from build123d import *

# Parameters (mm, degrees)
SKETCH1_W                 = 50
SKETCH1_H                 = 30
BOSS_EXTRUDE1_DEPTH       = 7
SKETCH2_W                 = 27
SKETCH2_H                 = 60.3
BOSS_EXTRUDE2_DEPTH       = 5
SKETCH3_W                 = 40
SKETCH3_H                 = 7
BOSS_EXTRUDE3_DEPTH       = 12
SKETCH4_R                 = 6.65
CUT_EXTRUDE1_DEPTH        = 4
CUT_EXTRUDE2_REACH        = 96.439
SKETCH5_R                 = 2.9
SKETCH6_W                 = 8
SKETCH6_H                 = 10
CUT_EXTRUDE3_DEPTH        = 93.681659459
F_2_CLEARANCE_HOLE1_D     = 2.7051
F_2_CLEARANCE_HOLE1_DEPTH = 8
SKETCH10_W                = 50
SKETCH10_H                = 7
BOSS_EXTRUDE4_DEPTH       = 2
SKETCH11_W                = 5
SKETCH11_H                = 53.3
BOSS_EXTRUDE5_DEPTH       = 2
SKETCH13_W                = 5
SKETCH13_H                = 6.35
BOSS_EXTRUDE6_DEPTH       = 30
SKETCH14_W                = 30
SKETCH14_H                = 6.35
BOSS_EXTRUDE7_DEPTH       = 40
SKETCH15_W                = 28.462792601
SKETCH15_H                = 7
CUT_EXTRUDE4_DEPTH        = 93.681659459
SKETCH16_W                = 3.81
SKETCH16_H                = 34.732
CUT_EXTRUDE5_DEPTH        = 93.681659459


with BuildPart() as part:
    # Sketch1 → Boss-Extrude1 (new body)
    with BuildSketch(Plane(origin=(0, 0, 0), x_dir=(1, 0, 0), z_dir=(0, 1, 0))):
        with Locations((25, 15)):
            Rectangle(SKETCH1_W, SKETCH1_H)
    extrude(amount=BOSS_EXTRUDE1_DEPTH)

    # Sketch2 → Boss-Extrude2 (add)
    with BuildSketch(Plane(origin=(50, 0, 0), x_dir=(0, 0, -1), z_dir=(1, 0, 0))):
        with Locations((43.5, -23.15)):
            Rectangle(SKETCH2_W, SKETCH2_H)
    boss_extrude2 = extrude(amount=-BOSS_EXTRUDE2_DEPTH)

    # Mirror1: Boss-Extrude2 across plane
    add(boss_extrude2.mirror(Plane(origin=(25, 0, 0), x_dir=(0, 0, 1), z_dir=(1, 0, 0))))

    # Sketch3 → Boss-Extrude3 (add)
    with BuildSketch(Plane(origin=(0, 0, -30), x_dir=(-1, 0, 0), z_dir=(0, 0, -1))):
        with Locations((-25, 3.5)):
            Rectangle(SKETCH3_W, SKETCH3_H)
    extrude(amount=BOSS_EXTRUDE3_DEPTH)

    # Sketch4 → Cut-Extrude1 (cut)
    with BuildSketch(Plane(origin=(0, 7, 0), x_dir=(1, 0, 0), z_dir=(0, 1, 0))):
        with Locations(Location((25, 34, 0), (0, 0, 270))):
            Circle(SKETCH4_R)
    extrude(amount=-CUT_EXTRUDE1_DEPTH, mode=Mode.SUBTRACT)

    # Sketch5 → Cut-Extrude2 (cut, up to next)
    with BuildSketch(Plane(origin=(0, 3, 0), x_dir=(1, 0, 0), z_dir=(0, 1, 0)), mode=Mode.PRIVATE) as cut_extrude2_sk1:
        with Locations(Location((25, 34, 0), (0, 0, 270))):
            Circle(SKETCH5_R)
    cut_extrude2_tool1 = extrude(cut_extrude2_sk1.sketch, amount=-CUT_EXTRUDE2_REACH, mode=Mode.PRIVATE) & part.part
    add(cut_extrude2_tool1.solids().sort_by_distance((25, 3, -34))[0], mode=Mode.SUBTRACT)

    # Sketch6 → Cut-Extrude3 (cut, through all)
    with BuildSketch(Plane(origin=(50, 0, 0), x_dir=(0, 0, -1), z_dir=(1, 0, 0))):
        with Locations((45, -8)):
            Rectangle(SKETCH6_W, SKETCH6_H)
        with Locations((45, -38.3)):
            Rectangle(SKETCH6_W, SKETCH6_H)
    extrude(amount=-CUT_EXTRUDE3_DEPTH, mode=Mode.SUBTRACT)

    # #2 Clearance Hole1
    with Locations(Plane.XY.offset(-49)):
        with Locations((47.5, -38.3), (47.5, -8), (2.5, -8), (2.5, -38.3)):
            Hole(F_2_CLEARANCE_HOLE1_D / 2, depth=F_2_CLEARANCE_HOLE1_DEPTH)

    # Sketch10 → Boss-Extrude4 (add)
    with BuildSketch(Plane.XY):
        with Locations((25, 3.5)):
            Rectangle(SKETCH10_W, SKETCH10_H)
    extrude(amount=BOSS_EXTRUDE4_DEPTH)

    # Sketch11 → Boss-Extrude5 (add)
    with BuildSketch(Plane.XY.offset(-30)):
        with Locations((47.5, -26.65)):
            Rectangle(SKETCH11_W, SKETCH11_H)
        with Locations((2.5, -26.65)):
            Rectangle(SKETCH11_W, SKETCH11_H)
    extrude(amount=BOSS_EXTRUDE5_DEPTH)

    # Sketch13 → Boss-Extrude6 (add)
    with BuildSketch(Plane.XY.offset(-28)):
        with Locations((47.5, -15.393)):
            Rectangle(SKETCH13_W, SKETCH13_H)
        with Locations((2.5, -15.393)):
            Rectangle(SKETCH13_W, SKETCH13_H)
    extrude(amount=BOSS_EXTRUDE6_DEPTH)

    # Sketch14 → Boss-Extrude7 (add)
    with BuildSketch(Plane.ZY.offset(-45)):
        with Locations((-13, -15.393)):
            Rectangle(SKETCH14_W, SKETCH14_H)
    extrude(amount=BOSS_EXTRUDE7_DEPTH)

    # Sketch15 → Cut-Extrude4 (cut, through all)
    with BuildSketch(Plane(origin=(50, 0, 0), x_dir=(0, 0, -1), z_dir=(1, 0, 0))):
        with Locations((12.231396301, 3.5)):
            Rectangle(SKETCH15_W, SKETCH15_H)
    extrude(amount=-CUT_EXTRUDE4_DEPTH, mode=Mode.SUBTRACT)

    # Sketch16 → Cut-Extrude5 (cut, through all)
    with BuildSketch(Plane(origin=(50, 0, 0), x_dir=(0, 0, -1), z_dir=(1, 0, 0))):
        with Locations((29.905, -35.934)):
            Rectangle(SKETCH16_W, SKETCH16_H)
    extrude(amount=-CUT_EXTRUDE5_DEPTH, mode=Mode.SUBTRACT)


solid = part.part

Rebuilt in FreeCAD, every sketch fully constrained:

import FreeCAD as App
import Part
import Sketcher

V = App.Vector
Q = App.Units.Quantity

doc = App.newDocument("Part")
body = doc.addObject("PartDesign::Body", "Body")

sketch1 = doc.addObject("Sketcher::SketchObject", "Sketch")
body.addObject(sketch1)
sketch1.AttachmentSupport = (doc.XZ_Plane, [""])
sketch1.MapMode = "FlatFace"
sketch1.addGeometry([
    Part.LineSegment(V(0, -30, 0), V(0, 0, 0)),
    Part.LineSegment(V(0, 0, 0), V(50, 0, 0)),
    Part.LineSegment(V(50, 0, 0), V(50, -30, 0)),
    Part.LineSegment(V(50, -30, 0), V(0, -30, 0)),
], False)
sketch1.addConstraint([
    Sketcher.Constraint("Coincident", 0, 2, 1, 1),
    Sketcher.Constraint("Coincident", 1, 2, 2, 1),
    Sketcher.Constraint("Coincident", 2, 2, 3, 1),
    Sketcher.Constraint("Coincident", 3, 2, 0, 1),
    Sketcher.Constraint("Vertical", 0),
    Sketcher.Constraint("Horizontal", 1),
    Sketcher.Constraint("Vertical", 2),
    Sketcher.Constraint("Horizontal", 3),
    Sketcher.Constraint("Coincident", 0, 2, -1, 1),
    Sketcher.Constraint("DistanceX", 1, 1, 1, 2, Q("50 mm")),
    Sketcher.Constraint("DistanceY", 0, 1, 0, 2, Q("30 mm")),
])
pad1 = doc.addObject("PartDesign::Pad", "Pad")
body.addObject(pad1)
pad1.Profile = sketch1
pad1.Length = 7
pad1.Reversed = True

sketch2 = doc.addObject("Sketcher::SketchObject", "Sketch001")
body.addObject(sketch2)
sketch2.AttachmentSupport = (doc.YZ_Plane, [""])
sketch2.MapMode = "FlatFace"
sketch2.AttachmentOffset = App.Placement(V(0, 0, 50), App.Rotation())
sketch2.addGeometry([
    Part.LineSegment(V(7, -30, 0), V(-53.3, -30, 0)),
    Part.LineSegment(V(-53.3, -30, 0), V(-53.3, -57, 0)),
    Part.LineSegment(V(-53.3, -57, 0), V(7, -57, 0)),
    Part.LineSegment(V(7, -57, 0), V(7, -30, 0)),
], False)
sketch2.addConstraint([
    Sketcher.Constraint("Coincident", 0, 2, 1, 1),
    Sketcher.Constraint("Coincident", 1, 2, 2, 1),
    Sketcher.Constraint("Coincident", 2, 2, 3, 1),
    Sketcher.Constraint("Coincident", 3, 2, 0, 1),
    Sketcher.Constraint("Horizontal", 0),
    Sketcher.Constraint("Vertical", 1),
    Sketcher.Constraint("Horizontal", 2),
    Sketcher.Constraint("Vertical", 3),
    Sketcher.Constraint("DistanceY", 1, 2, 1, 1, Q("27 mm")),
    Sketcher.Constraint("DistanceX", 0, 2, 0, 1, Q("60.3 mm")),
    Sketcher.Constraint("DistanceY", 0, 2, -1, 1, Q("30 mm")),
    Sketcher.Constraint("DistanceX", -1, 1, 2, 2, Q("7 mm")),
])
pad2 = doc.addObject("PartDesign::Pad", "Pad001")
body.addObject(pad2)
pad2.Profile = sketch2
pad2.Length = 5
pad2.Reversed = True
doc.recompute()

datumplane = doc.addObject("PartDesign::Plane", "DatumPlane")
body.addObject(datumplane)
datumplane.AttachmentSupport = (doc.YZ_Plane, [""])
datumplane.MapMode = "FlatFace"
datumplane.AttachmentOffset = App.Placement(V(0, 0, 25), App.Rotation())
mirrored = doc.addObject("PartDesign::Mirrored", "Mirrored")
body.addObject(mirrored)
mirrored.Originals = [pad2]
mirrored.MirrorPlane = (datumplane, [""])
body.Tip = mirrored

sketch3 = doc.addObject("Sketcher::SketchObject", "Sketch002")
body.addObject(sketch3)
sketch3.AttachmentSupport = (doc.XY_Plane, [""])
sketch3.MapMode = "FlatFace"
sketch3.AttachmentOffset = App.Placement(V(0, 0, -30), App.Rotation())
sketch3.addGeometry([
    Part.LineSegment(V(45, 7, 0), V(45, 0, 0)),
    Part.LineSegment(V(45, 0, 0), V(5, 0, 0)),
    Part.LineSegment(V(5, 0, 0), V(5, 7, 0)),
    Part.LineSegment(V(5, 7, 0), V(45, 7, 0)),
], False)
sketch3.addConstraint([
    Sketcher.Constraint("Coincident", 0, 2, 1, 1),
    Sketcher.Constraint("Coincident", 1, 2, 2, 1),
    Sketcher.Constraint("Coincident", 2, 2, 3, 1),
    Sketcher.Constraint("Coincident", 3, 2, 0, 1),
    Sketcher.Constraint("Vertical", 0),
    Sketcher.Constraint("Horizontal", 1),
    Sketcher.Constraint("Vertical", 2),
    Sketcher.Constraint("Horizontal", 3),
    Sketcher.Constraint("PointOnObject", 0, 2, -1),
    Sketcher.Constraint("DistanceX", 1, 2, 1, 1, Q("40 mm")),
    Sketcher.Constraint("DistanceY", 0, 2, 0, 1, Q("7 mm")),
    Sketcher.Constraint("DistanceX", -1, 1, 0, 2, Q("45 mm")),
])
pad3 = doc.addObject("PartDesign::Pad", "Pad002")
body.addObject(pad3)
pad3.Profile = sketch3
pad3.Length = 12
pad3.Reversed = True

sketch4 = doc.addObject("Sketcher::SketchObject", "Sketch003")
body.addObject(sketch4)
sketch4.AttachmentSupport = (doc.XZ_Plane, [""])
sketch4.MapMode = "FlatFace"
sketch4.AttachmentOffset = App.Placement(V(0, 0, -7), App.Rotation())
sketch4.addGeometry(Part.Circle(V(25, -34, 0), V(0, 0, 1), 6.65), False)
sketch4.addConstraint([
    Sketcher.Constraint("Diameter", 0, Q("13.3 mm")),
    Sketcher.Constraint("DistanceX", -1, 1, 0, 3, Q("25 mm")),
    Sketcher.Constraint("DistanceY", 0, 3, -1, 1, Q("34 mm")),
])
pocket1 = doc.addObject("PartDesign::Pocket", "Pocket")
body.addObject(pocket1)
pocket1.Profile = sketch4
pocket1.Length = 4
pocket1.Reversed = True

sketch5 = doc.addObject("Sketcher::SketchObject", "Sketch004")
body.addObject(sketch5)
sketch5.AttachmentSupport = (doc.XZ_Plane, [""])
sketch5.MapMode = "FlatFace"
sketch5.AttachmentOffset = App.Placement(V(0, 0, -3), App.Rotation())
sketch5.addGeometry(Part.Circle(V(25, -34, 0), V(0, 0, 1), 2.9), False)
sketch5.addConstraint([
    Sketcher.Constraint("Diameter", 0, Q("5.8 mm")),
    Sketcher.Constraint("DistanceX", -1, 1, 0, 3, Q("25 mm")),
    Sketcher.Constraint("DistanceY", 0, 3, -1, 1, Q("34 mm")),
])
pocket2 = doc.addObject("PartDesign::Pocket", "Pocket001")
body.addObject(pocket2)
pocket2.Profile = sketch5
pocket2.Type = "UpToFirst"
pocket2.Reversed = True

sketch6 = doc.addObject("Sketcher::SketchObject", "Sketch005")
body.addObject(sketch6)
sketch6.AttachmentSupport = (doc.YZ_Plane, [""])
sketch6.MapMode = "FlatFace"
sketch6.AttachmentOffset = App.Placement(V(0, 0, 50), App.Rotation())
sketch6.addGeometry([
    Part.LineSegment(V(-3, -41, 0), V(-13, -41, 0)),
    Part.LineSegment(V(-13, -41, 0), V(-13, -49, 0)),
    Part.LineSegment(V(-13, -49, 0), V(-3, -49, 0)),
    Part.LineSegment(V(-3, -49, 0), V(-3, -41, 0)),
    Part.LineSegment(V(-33.3, -41, 0), V(-43.3, -41, 0)),
    Part.LineSegment(V(-43.3, -41, 0), V(-43.3, -49, 0)),
    Part.LineSegment(V(-43.3, -49, 0), V(-33.3, -49, 0)),
    Part.LineSegment(V(-33.3, -49, 0), V(-33.3, -41, 0)),
], False)
sketch6.addConstraint([
    Sketcher.Constraint("Coincident", 0, 2, 1, 1),
    Sketcher.Constraint("Coincident", 1, 2, 2, 1),
    Sketcher.Constraint("Coincident", 2, 2, 3, 1),
    Sketcher.Constraint("Coincident", 3, 2, 0, 1),
    Sketcher.Constraint("Coincident", 4, 2, 5, 1),
    Sketcher.Constraint("Coincident", 5, 2, 6, 1),
    Sketcher.Constraint("Coincident", 6, 2, 7, 1),
    Sketcher.Constraint("Coincident", 7, 2, 4, 1),
    Sketcher.Constraint("Horizontal", 0),
    Sketcher.Constraint("Vertical", 1),
    Sketcher.Constraint("Horizontal", 2),
    Sketcher.Constraint("Vertical", 3),
    Sketcher.Constraint("Horizontal", 4),
    Sketcher.Constraint("Vertical", 5),
    Sketcher.Constraint("Horizontal", 6),
    Sketcher.Constraint("Vertical", 7),
    Sketcher.Constraint("Horizontal", 3, 2, 4, 2),
    Sketcher.Constraint("Horizontal", 2, 2, 5, 2),
    Sketcher.Constraint("Equal", 2, 4),
    Sketcher.Constraint("DistanceX", 0, 2, 0, 1, Q("10 mm")),
    Sketcher.Constraint("DistanceY", 1, 2, 1, 1, Q("8 mm")),
    Sketcher.Constraint("DistanceX", 0, 2, -1, 1, Q("13 mm")),
    Sketcher.Constraint("DistanceY", 0, 2, -1, 1, Q("41 mm")),
    Sketcher.Constraint("DistanceX", 4, 2, -1, 1, Q("43.3 mm")),
])
pocket3 = doc.addObject("PartDesign::Pocket", "Pocket002")
body.addObject(pocket3)
pocket3.Profile = sketch6
pocket3.Type = "ThroughAll"

sketch7 = doc.addObject("Sketcher::SketchObject", "Sketch006")
body.addObject(sketch7)
sketch7.AttachmentSupport = (doc.XY_Plane, [""])
sketch7.MapMode = "FlatFace"
sketch7.AttachmentOffset = App.Placement(V(0, 0, -49), App.Rotation())
sketch7.addGeometry([
    Part.Circle(V(47.5, -38.3, 0), V(0, 0, 1), 1.35255),
    Part.Circle(V(47.5, -8, 0), V(0, 0, 1), 1.35255),
    Part.Circle(V(2.5, -8, 0), V(0, 0, 1), 1.35255),
    Part.Circle(V(2.5, -38.3, 0), V(0, 0, 1), 1.35255),
], False)
sketch7.addConstraint([
    Sketcher.Constraint("Equal", 0, 1),
    Sketcher.Constraint("Equal", 1, 2),
    Sketcher.Constraint("Equal", 2, 3),
    Sketcher.Constraint("Horizontal", 1, 3, 2, 3),
    Sketcher.Constraint("Horizontal", 0, 3, 3, 3),
    Sketcher.Constraint("Vertical", 0, 3, 1, 3),
    Sketcher.Constraint("Vertical", 2, 3, 3, 3),
    Sketcher.Constraint("DistanceY", 1, 3, -1, 1, Q("8 mm")),
    Sketcher.Constraint("DistanceX", 2, 3, 1, 3, Q("45 mm")),
    Sketcher.Constraint("Diameter", 0, Q("2.7051 mm")),
    Sketcher.Constraint("DistanceX", -1, 1, 0, 3, Q("47.5 mm")),
    Sketcher.Constraint("DistanceY", 0, 3, -1, 1, Q("38.3 mm")),
])
doc.recompute()
hole = doc.addObject("PartDesign::Hole", "Hole")
body.addObject(hole)
hole.Profile = sketch7
hole.ThreadType = "None"
hole.Diameter = 2.7051
hole.DepthType = "Dimension"
hole.Depth = 8
hole.DrillPoint = "Flat"

sketch8 = doc.addObject("Sketcher::SketchObject", "Sketch007")
body.addObject(sketch8)
sketch8.AttachmentSupport = (doc.XY_Plane, [""])
sketch8.MapMode = "FlatFace"
sketch8.addGeometry([
    Part.LineSegment(V(0, 7, 0), V(0, 0, 0)),
    Part.LineSegment(V(0, 0, 0), V(50, 0, 0)),
    Part.LineSegment(V(50, 0, 0), V(50, 7, 0)),
    Part.LineSegment(V(50, 7, 0), V(0, 7, 0)),
], False)
sketch8.addConstraint([
    Sketcher.Constraint("Coincident", 0, 2, 1, 1),
    Sketcher.Constraint("Coincident", 1, 2, 2, 1),
    Sketcher.Constraint("Coincident", 2, 2, 3, 1),
    Sketcher.Constraint("Coincident", 3, 2, 0, 1),
    Sketcher.Constraint("Vertical", 0),
    Sketcher.Constraint("Horizontal", 1),
    Sketcher.Constraint("Vertical", 2),
    Sketcher.Constraint("Horizontal", 3),
    Sketcher.Constraint("Coincident", 0, 2, -1, 1),
    Sketcher.Constraint("DistanceX", 1, 1, 1, 2, Q("50 mm")),
    Sketcher.Constraint("DistanceY", 0, 2, 0, 1, Q("7 mm")),
])
pad4 = doc.addObject("PartDesign::Pad", "Pad003")
body.addObject(pad4)
pad4.Profile = sketch8
pad4.Length = 2

sketch9 = doc.addObject("Sketcher::SketchObject", "Sketch008")
body.addObject(sketch9)
sketch9.AttachmentSupport = (doc.XY_Plane, [""])
sketch9.MapMode = "FlatFace"
sketch9.AttachmentOffset = App.Placement(V(0, 0, -30), App.Rotation())
sketch9.addGeometry([
    Part.LineSegment(V(45, 0, 0), V(45, -53.3, 0)),
    Part.LineSegment(V(45, -53.3, 0), V(50, -53.3, 0)),
    Part.LineSegment(V(50, -53.3, 0), V(50, 0, 0)),
    Part.LineSegment(V(50, 0, 0), V(45, 0, 0)),
    Part.LineSegment(V(0, 0, 0), V(0, -53.3, 0)),
    Part.LineSegment(V(0, -53.3, 0), V(5, -53.3, 0)),
    Part.LineSegment(V(5, -53.3, 0), V(5, 0, 0)),
    Part.LineSegment(V(5, 0, 0), V(0, 0, 0)),
], False)
sketch9.addConstraint([
    Sketcher.Constraint("Coincident", 0, 2, 1, 1),
    Sketcher.Constraint("Coincident", 1, 2, 2, 1),
    Sketcher.Constraint("Coincident", 2, 2, 3, 1),
    Sketcher.Constraint("Coincident", 3, 2, 0, 1),
    Sketcher.Constraint("Coincident", 4, 2, 5, 1),
    Sketcher.Constraint("Coincident", 5, 2, 6, 1),
    Sketcher.Constraint("Coincident", 6, 2, 7, 1),
    Sketcher.Constraint("Coincident", 7, 2, 4, 1),
    Sketcher.Constraint("Vertical", 0),
    Sketcher.Constraint("Horizontal", 1),
    Sketcher.Constraint("Vertical", 2),
    Sketcher.Constraint("Horizontal", 3),
    Sketcher.Constraint("Vertical", 4),
    Sketcher.Constraint("Horizontal", 5),
    Sketcher.Constraint("Vertical", 6),
    Sketcher.Constraint("Horizontal", 7),
    Sketcher.Constraint("Coincident", 7, 2, -1, 1),
    Sketcher.Constraint("PointOnObject", 2, 2, -1),
    Sketcher.Constraint("Horizontal", 1, 2, 4, 2),
    Sketcher.Constraint("Equal", 3, 5),
    Sketcher.Constraint("DistanceX", 1, 1, 1, 2, Q("5 mm")),
    Sketcher.Constraint("DistanceY", 0, 2, 0, 1, Q("53.3 mm")),
    Sketcher.Constraint("DistanceX", -1, 1, 0, 2, Q("45 mm")),
])
pad5 = doc.addObject("PartDesign::Pad", "Pad004")
body.addObject(pad5)
pad5.Profile = sketch9
pad5.Length = 2

sketch10 = doc.addObject("Sketcher::SketchObject", "Sketch009")
body.addObject(sketch10)
sketch10.AttachmentSupport = (doc.XY_Plane, [""])
sketch10.MapMode = "FlatFace"
sketch10.AttachmentOffset = App.Placement(V(0, 0, -28), App.Rotation())
sketch10.addGeometry([
    Part.LineSegment(V(45, -12.218, 0), V(45, -18.568, 0)),
    Part.LineSegment(V(45, -18.568, 0), V(50, -18.568, 0)),
    Part.LineSegment(V(50, -18.568, 0), V(50, -12.218, 0)),
    Part.LineSegment(V(50, -12.218, 0), V(45, -12.218, 0)),
    Part.LineSegment(V(0, -12.218, 0), V(0, -18.568, 0)),
    Part.LineSegment(V(0, -18.568, 0), V(5, -18.568, 0)),
    Part.LineSegment(V(5, -18.568, 0), V(5, -12.218, 0)),
    Part.LineSegment(V(5, -12.218, 0), V(0, -12.218, 0)),
], False)
sketch10.addConstraint([
    Sketcher.Constraint("Coincident", 0, 2, 1, 1),
    Sketcher.Constraint("Coincident", 1, 2, 2, 1),
    Sketcher.Constraint("Coincident", 2, 2, 3, 1),
    Sketcher.Constraint("Coincident", 3, 2, 0, 1),
    Sketcher.Constraint("Coincident", 4, 2, 5, 1),
    Sketcher.Constraint("Coincident", 5, 2, 6, 1),
    Sketcher.Constraint("Coincident", 6, 2, 7, 1),
    Sketcher.Constraint("Coincident", 7, 2, 4, 1),
    Sketcher.Constraint("Vertical", 0),
    Sketcher.Constraint("Horizontal", 1),
    Sketcher.Constraint("Vertical", 2),
    Sketcher.Constraint("Horizontal", 3),
    Sketcher.Constraint("Vertical", 4),
    Sketcher.Constraint("Horizontal", 5),
    Sketcher.Constraint("Vertical", 6),
    Sketcher.Constraint("Horizontal", 7),
    Sketcher.Constraint("PointOnObject", 4, 2, -2),
    Sketcher.Constraint("Horizontal", 1, 2, 4, 2),
    Sketcher.Constraint("Horizontal", 3, 2, 6, 2),
    Sketcher.Constraint("Equal", 3, 5),
    Sketcher.Constraint("DistanceX", 1, 1, 1, 2, Q("5 mm")),
    Sketcher.Constraint("DistanceX", -1, 1, 0, 2, Q("45 mm")),
    Sketcher.Constraint("DistanceY", 0, 2, 0, 1, Q("6.35 mm")),
    Sketcher.Constraint("DistanceY", 0, 2, -1, 1, Q("18.568 mm")),
])
pad6 = doc.addObject("PartDesign::Pad", "Pad005")
body.addObject(pad6)
pad6.Profile = sketch10
pad6.Length = 30

sketch11 = doc.addObject("Sketcher::SketchObject", "Sketch010")
body.addObject(sketch11)
sketch11.AttachmentSupport = (doc.YZ_Plane, [""])
sketch11.MapMode = "FlatFace"
sketch11.AttachmentOffset = App.Placement(V(0, 0, 45), App.Rotation())
sketch11.addGeometry([
    Part.LineSegment(V(-12.218, -28, 0), V(-18.568, -28, 0)),
    Part.LineSegment(V(-18.568, -28, 0), V(-18.568, 2, 0)),
    Part.LineSegment(V(-18.568, 2, 0), V(-12.218, 2, 0)),
    Part.LineSegment(V(-12.218, 2, 0), V(-12.218, -28, 0)),
], False)
sketch11.addConstraint([
    Sketcher.Constraint("Coincident", 0, 2, 1, 1),
    Sketcher.Constraint("Coincident", 1, 2, 2, 1),
    Sketcher.Constraint("Coincident", 2, 2, 3, 1),
    Sketcher.Constraint("Coincident", 3, 2, 0, 1),
    Sketcher.Constraint("Horizontal", 0),
    Sketcher.Constraint("Vertical", 1),
    Sketcher.Constraint("Horizontal", 2),
    Sketcher.Constraint("Vertical", 3),
    Sketcher.Constraint("DistanceY", 1, 1, 1, 2, Q("30 mm")),
    Sketcher.Constraint("DistanceY", 0, 2, -1, 1, Q("28 mm")),
    Sketcher.Constraint("DistanceX", 0, 2, 0, 1, Q("6.35 mm")),
    Sketcher.Constraint("DistanceX", 0, 2, -1, 1, Q("18.568 mm")),
])
pad7 = doc.addObject("PartDesign::Pad", "Pad006")
body.addObject(pad7)
pad7.Profile = sketch11
pad7.Length = 40
pad7.Reversed = True

sketch12 = doc.addObject("Sketcher::SketchObject", "Sketch011")
body.addObject(sketch12)
sketch12.AttachmentSupport = (doc.YZ_Plane, [""])
sketch12.MapMode = "FlatFace"
sketch12.AttachmentOffset = App.Placement(V(0, 0, 50), App.Rotation())
sketch12.addGeometry([
    Part.LineSegment(V(7, 2, 0), V(0, 2, 0)),
    Part.LineSegment(V(0, 2, 0), V(0, -26.462793, 0)),
    Part.LineSegment(V(0, -26.462793, 0), V(7, -26.462793, 0)),
    Part.LineSegment(V(7, -26.462793, 0), V(7, 2, 0)),
], False)
sketch12.addConstraint([
    Sketcher.Constraint("Coincident", 0, 2, 1, 1),
    Sketcher.Constraint("Coincident", 1, 2, 2, 1),
    Sketcher.Constraint("Coincident", 2, 2, 3, 1),
    Sketcher.Constraint("Coincident", 3, 2, 0, 1),
    Sketcher.Constraint("Horizontal", 0),
    Sketcher.Constraint("Vertical", 1),
    Sketcher.Constraint("Horizontal", 2),
    Sketcher.Constraint("Vertical", 3),
    Sketcher.Constraint("PointOnObject", 0, 2, -2),
    Sketcher.Constraint("DistanceX", 0, 2, 0, 1, Q("7 mm")),
    Sketcher.Constraint("DistanceY", -1, 1, 0, 2, Q("2 mm")),
    Sketcher.Constraint("DistanceY", 1, 2, 1, 1, Q("28.462793 mm")),
])
pocket4 = doc.addObject("PartDesign::Pocket", "Pocket003")
body.addObject(pocket4)
pocket4.Profile = sketch12
pocket4.Type = "ThroughAll"

sketch13 = doc.addObject("Sketcher::SketchObject", "Sketch012")
body.addObject(sketch13)
sketch13.AttachmentSupport = (doc.YZ_Plane, [""])
sketch13.MapMode = "FlatFace"
sketch13.AttachmentOffset = App.Placement(V(0, 0, 50), App.Rotation())
sketch13.addGeometry([
    Part.LineSegment(V(-18.568, -28, 0), V(-53.3, -28, 0)),
    Part.LineSegment(V(-53.3, -28, 0), V(-53.3, -31.81, 0)),
    Part.LineSegment(V(-53.3, -31.81, 0), V(-18.568, -31.81, 0)),
    Part.LineSegment(V(-18.568, -31.81, 0), V(-18.568, -28, 0)),
], False)
sketch13.addConstraint([
    Sketcher.Constraint("Coincident", 0, 2, 1, 1),
    Sketcher.Constraint("Coincident", 1, 2, 2, 1),
    Sketcher.Constraint("Coincident", 2, 2, 3, 1),
    Sketcher.Constraint("Coincident", 3, 2, 0, 1),
    Sketcher.Constraint("Horizontal", 0),
    Sketcher.Constraint("Vertical", 1),
    Sketcher.Constraint("Horizontal", 2),
    Sketcher.Constraint("Vertical", 3),
    Sketcher.Constraint("DistanceY", 0, 2, -1, 1, Q("28 mm")),
    Sketcher.Constraint("DistanceY", 1, 2, 1, 1, Q("3.81 mm")),
    Sketcher.Constraint("DistanceX", 0, 2, -1, 1, Q("53.3 mm")),
    Sketcher.Constraint("DistanceX", 0, 2, 0, 1, Q("34.732 mm")),
])
pocket5 = doc.addObject("PartDesign::Pocket", "Pocket004")
body.addObject(pocket5)
pocket5.Profile = sketch13
pocket5.Type = "ThroughAll"

doc.recompute()
